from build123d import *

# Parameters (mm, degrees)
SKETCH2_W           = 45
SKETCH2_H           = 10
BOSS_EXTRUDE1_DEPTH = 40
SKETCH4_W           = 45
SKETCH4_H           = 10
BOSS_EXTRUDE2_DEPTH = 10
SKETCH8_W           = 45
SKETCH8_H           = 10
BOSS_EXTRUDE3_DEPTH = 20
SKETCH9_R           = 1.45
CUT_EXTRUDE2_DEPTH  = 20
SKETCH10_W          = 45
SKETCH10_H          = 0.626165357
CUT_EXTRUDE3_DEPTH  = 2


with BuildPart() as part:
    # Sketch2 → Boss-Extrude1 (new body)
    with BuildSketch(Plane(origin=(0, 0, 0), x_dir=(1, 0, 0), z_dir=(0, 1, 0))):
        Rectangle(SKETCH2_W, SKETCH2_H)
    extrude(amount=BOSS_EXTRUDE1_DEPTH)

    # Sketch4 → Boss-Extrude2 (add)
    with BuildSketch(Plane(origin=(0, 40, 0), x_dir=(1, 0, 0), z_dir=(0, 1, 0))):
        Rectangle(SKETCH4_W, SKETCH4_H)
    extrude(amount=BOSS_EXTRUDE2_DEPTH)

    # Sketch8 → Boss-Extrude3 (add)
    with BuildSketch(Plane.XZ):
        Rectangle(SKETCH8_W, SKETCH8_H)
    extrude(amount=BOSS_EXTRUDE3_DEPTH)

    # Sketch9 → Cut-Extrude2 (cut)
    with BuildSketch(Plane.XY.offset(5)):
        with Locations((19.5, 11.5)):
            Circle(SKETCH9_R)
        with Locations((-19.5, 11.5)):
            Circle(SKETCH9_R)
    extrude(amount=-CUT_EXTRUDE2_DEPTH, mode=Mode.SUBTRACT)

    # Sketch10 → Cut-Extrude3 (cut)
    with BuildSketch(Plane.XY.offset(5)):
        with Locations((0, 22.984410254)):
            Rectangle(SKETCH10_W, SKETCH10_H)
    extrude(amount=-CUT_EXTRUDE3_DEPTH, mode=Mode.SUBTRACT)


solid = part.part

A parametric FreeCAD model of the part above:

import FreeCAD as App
import Part
import Sketcher
from FreeCAD import Vector
Q = App.Units.Quantity


def add_polygon(sketch, points):
    """Adds a closed chain of lines whose ends are joined by coincident constraints."""
    first, n = sketch.GeometryCount, len(points)
    for a, b in zip(points, points[1:] + points[:1]):
        sketch.addGeometry(Part.LineSegment(App.Vector(*a, 0), App.Vector(*b, 0)), False)
    for i in range(n):
        sketch.addConstraint(Sketcher.Constraint("Coincident", first + i, 2, first + (i + 1) % n, 1))

doc = App.newDocument("Part")
body = doc.addObject("PartDesign::Body", "Body")

sketch1 = body.newObject("Sketcher::SketchObject", "Sketch")
sketch1.AttachmentSupport = (doc.getObject("XZ_Plane"), [""])
sketch1.MapMode = "FlatFace"
add_polygon(sketch1, [(-22.5, -5), (-22.5, 5), (22.5, 5), (22.5, -5)])
sketch1.addConstraint(Sketcher.Constraint("Vertical", 0))
sketch1.addConstraint(Sketcher.Constraint("Horizontal", 1))
sketch1.addConstraint(Sketcher.Constraint("Vertical", 2))
sketch1.addConstraint(Sketcher.Constraint("Horizontal", 3))
sketch1.addConstraint(Sketcher.Constraint("Symmetric", 0, 2, 2, 2, -1, 1))
sketch1.addConstraint(Sketcher.Constraint("DistanceX", 1, 1, 1, 2, Q("45 mm")))
sketch1.addConstraint(Sketcher.Constraint("DistanceY", 0, 1, 0, 2, Q("10 mm")))
pad1 = body.newObject("PartDesign::Pad", "Pad")
pad1.Profile = sketch1
pad1.Length = 40
pad1.Reversed = True

sketch2 = body.newObject("Sketcher::SketchObject", "Sketch001")
sketch2.AttachmentSupport = (doc.getObject("XZ_Plane"), [""])
sketch2.MapMode = "FlatFace"
sketch2.AttachmentOffset = App.Placement(Vector(0, 0, -40), App.Rotation())
add_polygon(sketch2, [(-22.5, -5), (-22.5, 5), (22.5, 5), (22.5, -5)])
sketch2.addConstraint(Sketcher.Constraint("Vertical", 0))
sketch2.addConstraint(Sketcher.Constraint("Horizontal", 1))
sketch2.addConstraint(Sketcher.Constraint("Vertical", 2))
sketch2.addConstraint(Sketcher.Constraint("Horizontal", 3))
sketch2.addConstraint(Sketcher.Constraint("Symmetric", 0, 2, 2, 2, -1, 1))
sketch2.addConstraint(Sketcher.Constraint("DistanceX", 1, 1, 1, 2, Q("45 mm")))
sketch2.addConstraint(Sketcher.Constraint("DistanceY", 0, 1, 0, 2, Q("10 mm")))
pad2 = body.newObject("PartDesign::Pad", "Pad001")
pad2.Profile = sketch2
pad2.Length = 10
pad2.Reversed = True

sketch3 = body.newObject("Sketcher::SketchObject", "Sketch002")
sketch3.AttachmentSupport = (doc.getObject("XZ_Plane"), [""])
sketch3.MapMode = "FlatFace"
add_polygon(sketch3, [(-22.5, 5), (-22.5, -5), (22.5, -5), (22.5, 5)])
sketch3.addConstraint(Sketcher.Constraint("Vertical", 0))
sketch3.addConstraint(Sketcher.Constraint("Horizontal", 1))
sketch3.addConstraint(Sketcher.Constraint("Vertical", 2))
sketch3.addConstraint(Sketcher.Constraint("Horizontal", 3))
sketch3.addConstraint(Sketcher.Constraint("Symmetric", 0, 2, 2, 2, -1, 1))
sketch3.addConstraint(Sketcher.Constraint("DistanceX", 1, 1, 1, 2, Q("45 mm")))
sketch3.addConstraint(Sketcher.Constraint("DistanceY", 0, 2, 0, 1, Q("10 mm")))
pad3 = body.newObject("PartDesign::Pad", "Pad002")
pad3.Profile = sketch3
pad3.Length = 20

sketch4 = body.newObject("Sketcher::SketchObject", "Sketch003")
sketch4.AttachmentSupport = (doc.getObject("XY_Plane"), [""])
sketch4.MapMode = "FlatFace"
sketch4.AttachmentOffset = App.Placement(Vector(0, 0, 5), App.Rotation())
sketch4.addGeometry(Part.Circle(Vector(19.5, 11.5, 0), Vector(0, 0, 1), 1.45), False)
sketch4.addGeometry(Part.Circle(Vector(-19.5, 11.5, 0), Vector(0, 0, 1), 1.45), False)
sketch4.addConstraint(Sketcher.Constraint("Equal", 0, 1))
sketch4.addConstraint(Sketcher.Constraint("Symmetric", 0, 3, 1, 3, -2))
sketch4.addConstraint(Sketcher.Constraint("Diameter", 0, Q("2.9 mm")))
sketch4.addConstraint(Sketcher.Constraint("DistanceX", 1, 3, 0, 3, Q("39 mm")))
sketch4.addConstraint(Sketcher.Constraint("DistanceY", -1, 1, 0, 3, Q("11.5 mm")))
pocket1 = body.newObject("PartDesign::Pocket", "Pocket")
pocket1.Profile = sketch4
pocket1.Length = 20

sketch5 = body.newObject("Sketcher::SketchObject", "Sketch004")
sketch5.AttachmentSupport = (doc.getObject("XY_Plane"), [""])
sketch5.MapMode = "FlatFace"
sketch5.AttachmentOffset = App.Placement(Vector(0, 0, 5), App.Rotation())
add_polygon(sketch5, [(-22.5, 23.297493), (-22.5, 22.671328), (22.5, 22.671328), (22.5, 23.297493)])
sketch5.addConstraint(Sketcher.Constraint("Vertical", 0))
sketch5.addConstraint(Sketcher.Constraint("Horizontal", 1))
sketch5.addConstraint(Sketcher.Constraint("Vertical", 2))
sketch5.addConstraint(Sketcher.Constraint("Horizontal", 3))
sketch5.addConstraint(Sketcher.Constraint("DistanceX", 1, 1, 1, 2, Q("45 mm")))
sketch5.addConstraint(Sketcher.Constraint("DistanceX", 0, 2, -1, 1, Q("22.5 mm")))
sketch5.addConstraint(Sketcher.Constraint("DistanceY", 0, 2, 0, 1, Q("0.626165 mm")))
sketch5.addConstraint(Sketcher.Constraint("DistanceY", -1, 1, 0, 2, Q("22.671328 mm")))
pocket2 = body.newObject("PartDesign::Pocket", "Pocket001")
pocket2.Profile = sketch5
pocket2.Length = 2

doc.recompute()
